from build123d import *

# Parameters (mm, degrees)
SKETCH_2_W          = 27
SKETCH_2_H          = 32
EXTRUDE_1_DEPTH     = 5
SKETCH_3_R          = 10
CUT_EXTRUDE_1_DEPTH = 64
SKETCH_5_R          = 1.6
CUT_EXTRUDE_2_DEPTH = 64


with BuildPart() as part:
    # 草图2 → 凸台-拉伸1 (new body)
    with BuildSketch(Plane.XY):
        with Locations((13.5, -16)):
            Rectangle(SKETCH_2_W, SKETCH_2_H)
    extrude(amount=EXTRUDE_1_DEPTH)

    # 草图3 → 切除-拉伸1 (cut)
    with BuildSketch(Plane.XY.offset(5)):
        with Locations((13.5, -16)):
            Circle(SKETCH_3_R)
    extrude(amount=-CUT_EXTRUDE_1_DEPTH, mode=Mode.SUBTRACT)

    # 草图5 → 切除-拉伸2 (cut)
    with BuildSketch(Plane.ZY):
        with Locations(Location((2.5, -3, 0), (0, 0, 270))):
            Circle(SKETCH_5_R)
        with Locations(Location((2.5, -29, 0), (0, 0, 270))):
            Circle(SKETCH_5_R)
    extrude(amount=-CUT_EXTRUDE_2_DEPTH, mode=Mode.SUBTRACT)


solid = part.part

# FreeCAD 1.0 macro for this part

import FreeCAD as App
import Part
import Sketcher
Q = App.Units.Quantity


def add_polygon(sketch, points):
    """Adds a closed chain of lines whose ends are joined by coincident constraints."""
    first, n = sketch.GeometryCount, len(points)
    for a, b in zip(points, points[1:] + points[:1]):
        sketch.addGeometry(Part.LineSegment(App.Vector(*a, 0), App.Vector(*b, 0)), False)
    for i in range(n):
        sketch.addConstraint(Sketcher.Constraint("Coincident", first + i, 2, first + (i + 1) % n, 1))

doc = App.newDocument("Part")
body = doc.addObject("PartDesign::Body", "Body")

# Sketch on XY plane
sketch1 = body.newObject("Sketcher::SketchObject", "Sketch")
sketch1.AttachmentSupport = (doc.getObject("XY_Plane"), [""])
sketch1.MapMode = "FlatFace"
add_polygon(sketch1, [(0, 0), (0, -32), (27, -32), (27, 0)])  # lines 0-3
sketch1.addConstraint([
    Sketcher.Constraint("Vertical", 0),
    Sketcher.Constraint("Horizontal", 1),
    Sketcher.Constraint("Vertical", 2),
    Sketcher.Constraint("Horizontal", 3),
    Sketcher.Constraint("Coincident", 3, 2, -1, 1),
    Sketcher.Constraint("DistanceX", 1, 1, 1, 2, Q("27 mm")),
    Sketcher.Constraint("DistanceY", 0, 2, 0, 1, Q("32 mm")),
])
pad1 = body.newObject("PartDesign::Pad", "Pad")
pad1.Profile = sketch1
pad1.Length = 5

# Sketch on XY plane
sketch2 = body.newObject("Sketcher::SketchObject", "Sketch001")
sketch2.AttachmentSupport = (doc.getObject("XY_Plane"), [""])
sketch2.MapMode = "FlatFace"
sketch2.AttachmentOffset = App.Placement(App.Vector(0, 0, 5), App.Rotation())
sketch2.addGeometry(Part.Circle(App.Vector(14, -16, 0), App.Vector(0, 0, 1), 10), False)
sketch2.addConstraint([
    Sketcher.Constraint("Diameter", 0, Q("20 mm")),
    Sketcher.Constraint("DistanceY", 0, 3, -1, 1, Q("16 mm")),
    Sketcher.Constraint("DistanceX", -1, 1, 0, 3, Q("13.5 mm")),
])
pocket1 = body.newObject("PartDesign::Pocket", "Pocket")
pocket1.Profile = sketch2
pocket1.Length = 64

# Sketch on YZ plane
sketch3 = body.newObject("Sketcher::SketchObject", "Sketch002")
sketch3.AttachmentSupport = (doc.getObject("YZ_Plane"), [""])
sketch3.MapMode = "FlatFace"
sketch3.addGeometry([
    Part.Circle(App.Vector(-3, 2.5, 0), App.Vector(0, 0, 1), 1.6),
    Part.Circle(App.Vector(-29, 2.5, 0), App.Vector(0, 0, 1), 1.6),
], False)
sketch3.addConstraint([
    Sketcher.Constraint("Equal", 0, 1),
    Sketcher.Constraint("Horizontal", 0, 3, 1, 3),
    Sketcher.Constraint("Diameter", 0, Q("3.2 mm")),
    Sketcher.Constraint("DistanceX", 0, 3, -1, 1, Q("3 mm")),
    Sketcher.Constraint("DistanceX", 1, 3, -1, 1, Q("29 mm")),
    Sketcher.Constraint("DistanceY", -1, 1, 0, 3, Q("2.5 mm")),
])
pocket2 = body.newObject("PartDesign::Pocket", "Pocket001")
pocket2.Profile = sketch3
pocket2.Length = 64
pocket2.Reversed = True

doc.recompute()
